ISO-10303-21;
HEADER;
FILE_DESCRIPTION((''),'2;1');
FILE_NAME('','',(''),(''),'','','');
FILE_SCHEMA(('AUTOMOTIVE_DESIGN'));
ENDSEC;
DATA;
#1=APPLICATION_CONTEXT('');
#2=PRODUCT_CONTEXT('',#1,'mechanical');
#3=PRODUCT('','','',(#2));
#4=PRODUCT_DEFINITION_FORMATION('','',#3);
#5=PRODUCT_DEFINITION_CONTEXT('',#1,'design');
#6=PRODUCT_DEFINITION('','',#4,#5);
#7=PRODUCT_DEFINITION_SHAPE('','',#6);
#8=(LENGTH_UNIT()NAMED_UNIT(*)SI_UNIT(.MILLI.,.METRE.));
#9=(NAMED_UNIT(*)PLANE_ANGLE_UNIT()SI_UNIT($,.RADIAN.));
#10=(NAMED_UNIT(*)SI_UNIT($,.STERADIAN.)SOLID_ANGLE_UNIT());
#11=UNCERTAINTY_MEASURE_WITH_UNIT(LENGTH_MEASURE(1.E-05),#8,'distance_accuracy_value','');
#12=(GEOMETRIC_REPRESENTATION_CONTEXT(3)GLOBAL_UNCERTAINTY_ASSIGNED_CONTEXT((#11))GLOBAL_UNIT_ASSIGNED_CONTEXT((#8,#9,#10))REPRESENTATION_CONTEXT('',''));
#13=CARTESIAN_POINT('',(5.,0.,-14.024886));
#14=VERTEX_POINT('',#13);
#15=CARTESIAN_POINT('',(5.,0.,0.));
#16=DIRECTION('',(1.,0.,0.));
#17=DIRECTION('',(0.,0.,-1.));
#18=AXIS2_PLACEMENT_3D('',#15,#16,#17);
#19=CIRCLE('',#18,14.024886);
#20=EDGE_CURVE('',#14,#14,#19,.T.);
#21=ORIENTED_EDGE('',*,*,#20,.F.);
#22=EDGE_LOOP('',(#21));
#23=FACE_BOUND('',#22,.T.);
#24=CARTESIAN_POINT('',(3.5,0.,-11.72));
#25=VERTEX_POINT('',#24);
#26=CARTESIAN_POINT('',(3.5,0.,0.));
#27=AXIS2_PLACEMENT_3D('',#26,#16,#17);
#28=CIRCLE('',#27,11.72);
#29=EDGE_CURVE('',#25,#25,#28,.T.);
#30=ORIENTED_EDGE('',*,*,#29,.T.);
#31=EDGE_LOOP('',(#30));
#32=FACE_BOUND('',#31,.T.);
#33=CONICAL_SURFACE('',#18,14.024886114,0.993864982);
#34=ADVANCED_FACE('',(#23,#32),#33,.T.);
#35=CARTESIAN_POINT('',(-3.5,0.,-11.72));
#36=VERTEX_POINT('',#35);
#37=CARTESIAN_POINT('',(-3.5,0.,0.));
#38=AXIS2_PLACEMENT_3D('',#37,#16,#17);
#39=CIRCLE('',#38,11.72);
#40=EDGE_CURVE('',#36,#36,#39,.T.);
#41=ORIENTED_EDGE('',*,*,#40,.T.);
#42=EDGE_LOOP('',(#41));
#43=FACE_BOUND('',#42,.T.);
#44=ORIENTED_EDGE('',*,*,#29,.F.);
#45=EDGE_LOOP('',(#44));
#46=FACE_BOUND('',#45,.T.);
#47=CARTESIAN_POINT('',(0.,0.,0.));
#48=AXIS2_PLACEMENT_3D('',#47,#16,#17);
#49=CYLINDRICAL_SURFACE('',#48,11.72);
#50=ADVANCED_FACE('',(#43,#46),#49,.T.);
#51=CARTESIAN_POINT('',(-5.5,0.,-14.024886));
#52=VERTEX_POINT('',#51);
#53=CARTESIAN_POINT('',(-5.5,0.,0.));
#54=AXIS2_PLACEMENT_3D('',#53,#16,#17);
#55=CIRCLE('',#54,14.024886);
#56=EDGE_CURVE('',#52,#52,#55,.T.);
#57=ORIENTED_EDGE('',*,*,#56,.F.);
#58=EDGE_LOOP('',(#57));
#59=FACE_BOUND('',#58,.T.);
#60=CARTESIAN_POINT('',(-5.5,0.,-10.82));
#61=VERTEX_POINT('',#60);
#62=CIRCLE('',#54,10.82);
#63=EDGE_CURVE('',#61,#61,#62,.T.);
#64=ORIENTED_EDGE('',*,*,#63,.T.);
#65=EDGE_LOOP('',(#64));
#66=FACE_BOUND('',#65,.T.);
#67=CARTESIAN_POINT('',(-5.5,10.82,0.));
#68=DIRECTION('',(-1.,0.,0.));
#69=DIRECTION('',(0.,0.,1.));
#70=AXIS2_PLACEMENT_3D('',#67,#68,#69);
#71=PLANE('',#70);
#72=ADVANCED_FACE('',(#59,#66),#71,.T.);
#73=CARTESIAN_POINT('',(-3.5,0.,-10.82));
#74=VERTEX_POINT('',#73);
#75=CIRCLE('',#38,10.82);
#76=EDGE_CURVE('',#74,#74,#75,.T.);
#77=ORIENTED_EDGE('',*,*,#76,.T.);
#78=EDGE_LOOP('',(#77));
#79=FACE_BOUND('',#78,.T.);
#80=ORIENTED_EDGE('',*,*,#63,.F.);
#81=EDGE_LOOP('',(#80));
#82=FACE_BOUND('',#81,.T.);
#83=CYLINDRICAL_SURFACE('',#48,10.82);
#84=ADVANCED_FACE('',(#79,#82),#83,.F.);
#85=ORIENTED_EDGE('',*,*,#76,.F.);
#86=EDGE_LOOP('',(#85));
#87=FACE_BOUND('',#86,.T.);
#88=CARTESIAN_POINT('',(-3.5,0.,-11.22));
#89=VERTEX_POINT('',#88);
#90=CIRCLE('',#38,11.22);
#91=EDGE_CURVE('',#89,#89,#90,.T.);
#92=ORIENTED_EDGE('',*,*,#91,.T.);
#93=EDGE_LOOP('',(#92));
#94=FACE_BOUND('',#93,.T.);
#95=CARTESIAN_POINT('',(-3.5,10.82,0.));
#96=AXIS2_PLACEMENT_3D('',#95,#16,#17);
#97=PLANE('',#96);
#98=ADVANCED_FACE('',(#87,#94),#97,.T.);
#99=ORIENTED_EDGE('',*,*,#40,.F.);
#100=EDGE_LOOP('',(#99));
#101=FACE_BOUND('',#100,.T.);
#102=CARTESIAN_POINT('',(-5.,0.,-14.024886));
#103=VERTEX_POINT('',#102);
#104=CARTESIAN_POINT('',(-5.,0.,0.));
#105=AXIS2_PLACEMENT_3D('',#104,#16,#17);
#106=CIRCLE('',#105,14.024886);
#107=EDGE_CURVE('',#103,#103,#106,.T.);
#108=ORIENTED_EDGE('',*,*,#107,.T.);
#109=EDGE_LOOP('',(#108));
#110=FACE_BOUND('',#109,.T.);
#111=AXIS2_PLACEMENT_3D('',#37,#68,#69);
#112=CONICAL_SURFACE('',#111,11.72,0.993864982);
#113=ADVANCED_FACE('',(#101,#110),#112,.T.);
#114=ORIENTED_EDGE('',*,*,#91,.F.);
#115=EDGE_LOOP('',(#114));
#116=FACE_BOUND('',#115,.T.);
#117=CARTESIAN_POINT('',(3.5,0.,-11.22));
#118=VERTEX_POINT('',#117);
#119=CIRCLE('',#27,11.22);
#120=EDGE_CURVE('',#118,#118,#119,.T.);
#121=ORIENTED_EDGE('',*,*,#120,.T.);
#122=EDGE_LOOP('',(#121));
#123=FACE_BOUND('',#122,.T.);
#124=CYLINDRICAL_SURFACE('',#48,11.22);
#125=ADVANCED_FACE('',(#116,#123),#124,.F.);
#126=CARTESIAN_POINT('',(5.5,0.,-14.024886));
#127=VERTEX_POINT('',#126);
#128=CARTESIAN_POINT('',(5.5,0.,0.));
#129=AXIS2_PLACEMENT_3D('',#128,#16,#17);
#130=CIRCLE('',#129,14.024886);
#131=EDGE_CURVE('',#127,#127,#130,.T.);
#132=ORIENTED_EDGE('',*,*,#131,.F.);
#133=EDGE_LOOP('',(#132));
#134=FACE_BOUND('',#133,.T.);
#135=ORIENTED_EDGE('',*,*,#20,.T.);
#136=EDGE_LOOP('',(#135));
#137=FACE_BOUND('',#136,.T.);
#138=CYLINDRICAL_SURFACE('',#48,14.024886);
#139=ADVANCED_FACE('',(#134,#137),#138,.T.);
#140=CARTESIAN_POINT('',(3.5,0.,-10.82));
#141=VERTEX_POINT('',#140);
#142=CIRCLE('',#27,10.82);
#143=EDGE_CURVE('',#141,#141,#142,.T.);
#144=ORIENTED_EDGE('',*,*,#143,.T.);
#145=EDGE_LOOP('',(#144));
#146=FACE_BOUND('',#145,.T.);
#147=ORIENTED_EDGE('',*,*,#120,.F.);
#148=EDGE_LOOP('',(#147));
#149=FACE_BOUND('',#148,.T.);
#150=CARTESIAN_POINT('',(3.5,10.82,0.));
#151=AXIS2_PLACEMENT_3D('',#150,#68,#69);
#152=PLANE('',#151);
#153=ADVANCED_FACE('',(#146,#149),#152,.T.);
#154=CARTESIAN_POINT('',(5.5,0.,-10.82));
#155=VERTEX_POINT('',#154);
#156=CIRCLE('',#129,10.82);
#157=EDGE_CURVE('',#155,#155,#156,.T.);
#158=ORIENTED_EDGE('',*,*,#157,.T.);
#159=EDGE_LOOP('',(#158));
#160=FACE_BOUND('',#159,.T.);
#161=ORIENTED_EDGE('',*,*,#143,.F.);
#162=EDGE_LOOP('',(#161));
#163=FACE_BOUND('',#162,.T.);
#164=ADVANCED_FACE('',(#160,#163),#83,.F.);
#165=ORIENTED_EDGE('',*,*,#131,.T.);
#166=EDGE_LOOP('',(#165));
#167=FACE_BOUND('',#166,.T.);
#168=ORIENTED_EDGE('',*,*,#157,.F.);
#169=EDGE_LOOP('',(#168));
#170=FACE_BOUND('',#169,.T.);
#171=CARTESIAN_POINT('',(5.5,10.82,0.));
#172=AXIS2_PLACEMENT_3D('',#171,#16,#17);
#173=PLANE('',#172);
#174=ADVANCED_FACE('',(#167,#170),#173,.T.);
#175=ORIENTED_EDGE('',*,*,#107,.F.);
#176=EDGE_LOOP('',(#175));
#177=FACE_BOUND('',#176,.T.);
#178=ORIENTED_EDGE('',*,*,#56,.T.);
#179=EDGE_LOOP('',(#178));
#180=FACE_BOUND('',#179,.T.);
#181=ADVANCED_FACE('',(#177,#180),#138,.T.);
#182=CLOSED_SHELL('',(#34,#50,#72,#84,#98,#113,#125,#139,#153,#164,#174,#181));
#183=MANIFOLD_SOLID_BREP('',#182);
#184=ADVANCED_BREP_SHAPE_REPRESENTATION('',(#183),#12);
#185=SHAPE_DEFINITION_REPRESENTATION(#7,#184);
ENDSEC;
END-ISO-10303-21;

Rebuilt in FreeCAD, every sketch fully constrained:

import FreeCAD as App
import Part
import Sketcher
from FreeCAD import Vector


def add_polygon(sketch, points):
    """Adds a closed chain of lines whose ends are joined by coincident constraints."""
    first, n = sketch.GeometryCount, len(points)
    for a, b in zip(points, points[1:] + points[:1]):
        sketch.addGeometry(Part.LineSegment(App.Vector(*a, 0), App.Vector(*b, 0)), False)
    for i in range(n):
        sketch.addConstraint(Sketcher.Constraint("Coincident", first + i, 2, first + (i + 1) % n, 1))

doc = App.newDocument("Part")
body = doc.addObject("PartDesign::Body", "Body")

sketch1 = doc.addObject("Sketcher::SketchObject", "Sketch")
body.addObject(sketch1)
sketch1.AttachmentSupport = (doc.XY_Plane, [""])
sketch1.MapMode = "FlatFace"
add_polygon(sketch1, [(-3.5, 11.72), (-5, 14.024886), (-5.5, 14.024886), (-5.5, 10.82), (-3.5, 10.82), (-3.5, 11.22), (3.5, 11.22), (3.5, 10.82), (5.5, 10.82), (5.5, 14.024886), (5, 14.024886), (3.5, 11.72)])
sketch1.addConstraint([
    Sketcher.Constraint("Horizontal", 1),
    Sketcher.Constraint("Vertical", 2),
    Sketcher.Constraint("Horizontal", 3),
    Sketcher.Constraint("Vertical", 4),
    Sketcher.Constraint("Horizontal", 5),
    Sketcher.Constraint("Vertical", 6),
    Sketcher.Constraint("Horizontal", 7),
    Sketcher.Constraint("Vertical", 8),
    Sketcher.Constraint("Horizontal", 9),
    Sketcher.Constraint("Horizontal", 11),
    Sketcher.Constraint("Symmetric", 3, 2, 6, 2, -2),
    Sketcher.Constraint("Symmetric", 1, 2, 8, 2, -2),
    Sketcher.Constraint("Vertical", 6, 2, 10, 2),
    Sketcher.Constraint("Vertical", 4, 2, 11, 2),
    Sketcher.Constraint("Equal", 1, 9),
    Sketcher.Constraint("DistanceX", 3, 1, 3, 2, 2.0),
    Sketcher.Constraint("DistanceX", 5, 1, 5, 2, 7.0),
    Sketcher.Constraint("DistanceX", 1, 2, 1, 1, 0.5),
    Sketcher.Constraint("DistanceY", 4, 1, 4, 2, 0.4),
    Sketcher.Constraint("DistanceY", 5, 2, 10, 2, 0.5),
    Sketcher.Constraint("Distance", 0, 2.75),
    Sketcher.Constraint("DistanceY", -1, 1, 2, 2, 10.82),
])
revolution = doc.addObject("PartDesign::Revolution", "Revolution")
body.addObject(revolution)
revolution.Profile = sketch1
revolution.ReferenceAxis = (sketch1, ["H_Axis"])
revolution.Angle = 360

doc.recompute()
